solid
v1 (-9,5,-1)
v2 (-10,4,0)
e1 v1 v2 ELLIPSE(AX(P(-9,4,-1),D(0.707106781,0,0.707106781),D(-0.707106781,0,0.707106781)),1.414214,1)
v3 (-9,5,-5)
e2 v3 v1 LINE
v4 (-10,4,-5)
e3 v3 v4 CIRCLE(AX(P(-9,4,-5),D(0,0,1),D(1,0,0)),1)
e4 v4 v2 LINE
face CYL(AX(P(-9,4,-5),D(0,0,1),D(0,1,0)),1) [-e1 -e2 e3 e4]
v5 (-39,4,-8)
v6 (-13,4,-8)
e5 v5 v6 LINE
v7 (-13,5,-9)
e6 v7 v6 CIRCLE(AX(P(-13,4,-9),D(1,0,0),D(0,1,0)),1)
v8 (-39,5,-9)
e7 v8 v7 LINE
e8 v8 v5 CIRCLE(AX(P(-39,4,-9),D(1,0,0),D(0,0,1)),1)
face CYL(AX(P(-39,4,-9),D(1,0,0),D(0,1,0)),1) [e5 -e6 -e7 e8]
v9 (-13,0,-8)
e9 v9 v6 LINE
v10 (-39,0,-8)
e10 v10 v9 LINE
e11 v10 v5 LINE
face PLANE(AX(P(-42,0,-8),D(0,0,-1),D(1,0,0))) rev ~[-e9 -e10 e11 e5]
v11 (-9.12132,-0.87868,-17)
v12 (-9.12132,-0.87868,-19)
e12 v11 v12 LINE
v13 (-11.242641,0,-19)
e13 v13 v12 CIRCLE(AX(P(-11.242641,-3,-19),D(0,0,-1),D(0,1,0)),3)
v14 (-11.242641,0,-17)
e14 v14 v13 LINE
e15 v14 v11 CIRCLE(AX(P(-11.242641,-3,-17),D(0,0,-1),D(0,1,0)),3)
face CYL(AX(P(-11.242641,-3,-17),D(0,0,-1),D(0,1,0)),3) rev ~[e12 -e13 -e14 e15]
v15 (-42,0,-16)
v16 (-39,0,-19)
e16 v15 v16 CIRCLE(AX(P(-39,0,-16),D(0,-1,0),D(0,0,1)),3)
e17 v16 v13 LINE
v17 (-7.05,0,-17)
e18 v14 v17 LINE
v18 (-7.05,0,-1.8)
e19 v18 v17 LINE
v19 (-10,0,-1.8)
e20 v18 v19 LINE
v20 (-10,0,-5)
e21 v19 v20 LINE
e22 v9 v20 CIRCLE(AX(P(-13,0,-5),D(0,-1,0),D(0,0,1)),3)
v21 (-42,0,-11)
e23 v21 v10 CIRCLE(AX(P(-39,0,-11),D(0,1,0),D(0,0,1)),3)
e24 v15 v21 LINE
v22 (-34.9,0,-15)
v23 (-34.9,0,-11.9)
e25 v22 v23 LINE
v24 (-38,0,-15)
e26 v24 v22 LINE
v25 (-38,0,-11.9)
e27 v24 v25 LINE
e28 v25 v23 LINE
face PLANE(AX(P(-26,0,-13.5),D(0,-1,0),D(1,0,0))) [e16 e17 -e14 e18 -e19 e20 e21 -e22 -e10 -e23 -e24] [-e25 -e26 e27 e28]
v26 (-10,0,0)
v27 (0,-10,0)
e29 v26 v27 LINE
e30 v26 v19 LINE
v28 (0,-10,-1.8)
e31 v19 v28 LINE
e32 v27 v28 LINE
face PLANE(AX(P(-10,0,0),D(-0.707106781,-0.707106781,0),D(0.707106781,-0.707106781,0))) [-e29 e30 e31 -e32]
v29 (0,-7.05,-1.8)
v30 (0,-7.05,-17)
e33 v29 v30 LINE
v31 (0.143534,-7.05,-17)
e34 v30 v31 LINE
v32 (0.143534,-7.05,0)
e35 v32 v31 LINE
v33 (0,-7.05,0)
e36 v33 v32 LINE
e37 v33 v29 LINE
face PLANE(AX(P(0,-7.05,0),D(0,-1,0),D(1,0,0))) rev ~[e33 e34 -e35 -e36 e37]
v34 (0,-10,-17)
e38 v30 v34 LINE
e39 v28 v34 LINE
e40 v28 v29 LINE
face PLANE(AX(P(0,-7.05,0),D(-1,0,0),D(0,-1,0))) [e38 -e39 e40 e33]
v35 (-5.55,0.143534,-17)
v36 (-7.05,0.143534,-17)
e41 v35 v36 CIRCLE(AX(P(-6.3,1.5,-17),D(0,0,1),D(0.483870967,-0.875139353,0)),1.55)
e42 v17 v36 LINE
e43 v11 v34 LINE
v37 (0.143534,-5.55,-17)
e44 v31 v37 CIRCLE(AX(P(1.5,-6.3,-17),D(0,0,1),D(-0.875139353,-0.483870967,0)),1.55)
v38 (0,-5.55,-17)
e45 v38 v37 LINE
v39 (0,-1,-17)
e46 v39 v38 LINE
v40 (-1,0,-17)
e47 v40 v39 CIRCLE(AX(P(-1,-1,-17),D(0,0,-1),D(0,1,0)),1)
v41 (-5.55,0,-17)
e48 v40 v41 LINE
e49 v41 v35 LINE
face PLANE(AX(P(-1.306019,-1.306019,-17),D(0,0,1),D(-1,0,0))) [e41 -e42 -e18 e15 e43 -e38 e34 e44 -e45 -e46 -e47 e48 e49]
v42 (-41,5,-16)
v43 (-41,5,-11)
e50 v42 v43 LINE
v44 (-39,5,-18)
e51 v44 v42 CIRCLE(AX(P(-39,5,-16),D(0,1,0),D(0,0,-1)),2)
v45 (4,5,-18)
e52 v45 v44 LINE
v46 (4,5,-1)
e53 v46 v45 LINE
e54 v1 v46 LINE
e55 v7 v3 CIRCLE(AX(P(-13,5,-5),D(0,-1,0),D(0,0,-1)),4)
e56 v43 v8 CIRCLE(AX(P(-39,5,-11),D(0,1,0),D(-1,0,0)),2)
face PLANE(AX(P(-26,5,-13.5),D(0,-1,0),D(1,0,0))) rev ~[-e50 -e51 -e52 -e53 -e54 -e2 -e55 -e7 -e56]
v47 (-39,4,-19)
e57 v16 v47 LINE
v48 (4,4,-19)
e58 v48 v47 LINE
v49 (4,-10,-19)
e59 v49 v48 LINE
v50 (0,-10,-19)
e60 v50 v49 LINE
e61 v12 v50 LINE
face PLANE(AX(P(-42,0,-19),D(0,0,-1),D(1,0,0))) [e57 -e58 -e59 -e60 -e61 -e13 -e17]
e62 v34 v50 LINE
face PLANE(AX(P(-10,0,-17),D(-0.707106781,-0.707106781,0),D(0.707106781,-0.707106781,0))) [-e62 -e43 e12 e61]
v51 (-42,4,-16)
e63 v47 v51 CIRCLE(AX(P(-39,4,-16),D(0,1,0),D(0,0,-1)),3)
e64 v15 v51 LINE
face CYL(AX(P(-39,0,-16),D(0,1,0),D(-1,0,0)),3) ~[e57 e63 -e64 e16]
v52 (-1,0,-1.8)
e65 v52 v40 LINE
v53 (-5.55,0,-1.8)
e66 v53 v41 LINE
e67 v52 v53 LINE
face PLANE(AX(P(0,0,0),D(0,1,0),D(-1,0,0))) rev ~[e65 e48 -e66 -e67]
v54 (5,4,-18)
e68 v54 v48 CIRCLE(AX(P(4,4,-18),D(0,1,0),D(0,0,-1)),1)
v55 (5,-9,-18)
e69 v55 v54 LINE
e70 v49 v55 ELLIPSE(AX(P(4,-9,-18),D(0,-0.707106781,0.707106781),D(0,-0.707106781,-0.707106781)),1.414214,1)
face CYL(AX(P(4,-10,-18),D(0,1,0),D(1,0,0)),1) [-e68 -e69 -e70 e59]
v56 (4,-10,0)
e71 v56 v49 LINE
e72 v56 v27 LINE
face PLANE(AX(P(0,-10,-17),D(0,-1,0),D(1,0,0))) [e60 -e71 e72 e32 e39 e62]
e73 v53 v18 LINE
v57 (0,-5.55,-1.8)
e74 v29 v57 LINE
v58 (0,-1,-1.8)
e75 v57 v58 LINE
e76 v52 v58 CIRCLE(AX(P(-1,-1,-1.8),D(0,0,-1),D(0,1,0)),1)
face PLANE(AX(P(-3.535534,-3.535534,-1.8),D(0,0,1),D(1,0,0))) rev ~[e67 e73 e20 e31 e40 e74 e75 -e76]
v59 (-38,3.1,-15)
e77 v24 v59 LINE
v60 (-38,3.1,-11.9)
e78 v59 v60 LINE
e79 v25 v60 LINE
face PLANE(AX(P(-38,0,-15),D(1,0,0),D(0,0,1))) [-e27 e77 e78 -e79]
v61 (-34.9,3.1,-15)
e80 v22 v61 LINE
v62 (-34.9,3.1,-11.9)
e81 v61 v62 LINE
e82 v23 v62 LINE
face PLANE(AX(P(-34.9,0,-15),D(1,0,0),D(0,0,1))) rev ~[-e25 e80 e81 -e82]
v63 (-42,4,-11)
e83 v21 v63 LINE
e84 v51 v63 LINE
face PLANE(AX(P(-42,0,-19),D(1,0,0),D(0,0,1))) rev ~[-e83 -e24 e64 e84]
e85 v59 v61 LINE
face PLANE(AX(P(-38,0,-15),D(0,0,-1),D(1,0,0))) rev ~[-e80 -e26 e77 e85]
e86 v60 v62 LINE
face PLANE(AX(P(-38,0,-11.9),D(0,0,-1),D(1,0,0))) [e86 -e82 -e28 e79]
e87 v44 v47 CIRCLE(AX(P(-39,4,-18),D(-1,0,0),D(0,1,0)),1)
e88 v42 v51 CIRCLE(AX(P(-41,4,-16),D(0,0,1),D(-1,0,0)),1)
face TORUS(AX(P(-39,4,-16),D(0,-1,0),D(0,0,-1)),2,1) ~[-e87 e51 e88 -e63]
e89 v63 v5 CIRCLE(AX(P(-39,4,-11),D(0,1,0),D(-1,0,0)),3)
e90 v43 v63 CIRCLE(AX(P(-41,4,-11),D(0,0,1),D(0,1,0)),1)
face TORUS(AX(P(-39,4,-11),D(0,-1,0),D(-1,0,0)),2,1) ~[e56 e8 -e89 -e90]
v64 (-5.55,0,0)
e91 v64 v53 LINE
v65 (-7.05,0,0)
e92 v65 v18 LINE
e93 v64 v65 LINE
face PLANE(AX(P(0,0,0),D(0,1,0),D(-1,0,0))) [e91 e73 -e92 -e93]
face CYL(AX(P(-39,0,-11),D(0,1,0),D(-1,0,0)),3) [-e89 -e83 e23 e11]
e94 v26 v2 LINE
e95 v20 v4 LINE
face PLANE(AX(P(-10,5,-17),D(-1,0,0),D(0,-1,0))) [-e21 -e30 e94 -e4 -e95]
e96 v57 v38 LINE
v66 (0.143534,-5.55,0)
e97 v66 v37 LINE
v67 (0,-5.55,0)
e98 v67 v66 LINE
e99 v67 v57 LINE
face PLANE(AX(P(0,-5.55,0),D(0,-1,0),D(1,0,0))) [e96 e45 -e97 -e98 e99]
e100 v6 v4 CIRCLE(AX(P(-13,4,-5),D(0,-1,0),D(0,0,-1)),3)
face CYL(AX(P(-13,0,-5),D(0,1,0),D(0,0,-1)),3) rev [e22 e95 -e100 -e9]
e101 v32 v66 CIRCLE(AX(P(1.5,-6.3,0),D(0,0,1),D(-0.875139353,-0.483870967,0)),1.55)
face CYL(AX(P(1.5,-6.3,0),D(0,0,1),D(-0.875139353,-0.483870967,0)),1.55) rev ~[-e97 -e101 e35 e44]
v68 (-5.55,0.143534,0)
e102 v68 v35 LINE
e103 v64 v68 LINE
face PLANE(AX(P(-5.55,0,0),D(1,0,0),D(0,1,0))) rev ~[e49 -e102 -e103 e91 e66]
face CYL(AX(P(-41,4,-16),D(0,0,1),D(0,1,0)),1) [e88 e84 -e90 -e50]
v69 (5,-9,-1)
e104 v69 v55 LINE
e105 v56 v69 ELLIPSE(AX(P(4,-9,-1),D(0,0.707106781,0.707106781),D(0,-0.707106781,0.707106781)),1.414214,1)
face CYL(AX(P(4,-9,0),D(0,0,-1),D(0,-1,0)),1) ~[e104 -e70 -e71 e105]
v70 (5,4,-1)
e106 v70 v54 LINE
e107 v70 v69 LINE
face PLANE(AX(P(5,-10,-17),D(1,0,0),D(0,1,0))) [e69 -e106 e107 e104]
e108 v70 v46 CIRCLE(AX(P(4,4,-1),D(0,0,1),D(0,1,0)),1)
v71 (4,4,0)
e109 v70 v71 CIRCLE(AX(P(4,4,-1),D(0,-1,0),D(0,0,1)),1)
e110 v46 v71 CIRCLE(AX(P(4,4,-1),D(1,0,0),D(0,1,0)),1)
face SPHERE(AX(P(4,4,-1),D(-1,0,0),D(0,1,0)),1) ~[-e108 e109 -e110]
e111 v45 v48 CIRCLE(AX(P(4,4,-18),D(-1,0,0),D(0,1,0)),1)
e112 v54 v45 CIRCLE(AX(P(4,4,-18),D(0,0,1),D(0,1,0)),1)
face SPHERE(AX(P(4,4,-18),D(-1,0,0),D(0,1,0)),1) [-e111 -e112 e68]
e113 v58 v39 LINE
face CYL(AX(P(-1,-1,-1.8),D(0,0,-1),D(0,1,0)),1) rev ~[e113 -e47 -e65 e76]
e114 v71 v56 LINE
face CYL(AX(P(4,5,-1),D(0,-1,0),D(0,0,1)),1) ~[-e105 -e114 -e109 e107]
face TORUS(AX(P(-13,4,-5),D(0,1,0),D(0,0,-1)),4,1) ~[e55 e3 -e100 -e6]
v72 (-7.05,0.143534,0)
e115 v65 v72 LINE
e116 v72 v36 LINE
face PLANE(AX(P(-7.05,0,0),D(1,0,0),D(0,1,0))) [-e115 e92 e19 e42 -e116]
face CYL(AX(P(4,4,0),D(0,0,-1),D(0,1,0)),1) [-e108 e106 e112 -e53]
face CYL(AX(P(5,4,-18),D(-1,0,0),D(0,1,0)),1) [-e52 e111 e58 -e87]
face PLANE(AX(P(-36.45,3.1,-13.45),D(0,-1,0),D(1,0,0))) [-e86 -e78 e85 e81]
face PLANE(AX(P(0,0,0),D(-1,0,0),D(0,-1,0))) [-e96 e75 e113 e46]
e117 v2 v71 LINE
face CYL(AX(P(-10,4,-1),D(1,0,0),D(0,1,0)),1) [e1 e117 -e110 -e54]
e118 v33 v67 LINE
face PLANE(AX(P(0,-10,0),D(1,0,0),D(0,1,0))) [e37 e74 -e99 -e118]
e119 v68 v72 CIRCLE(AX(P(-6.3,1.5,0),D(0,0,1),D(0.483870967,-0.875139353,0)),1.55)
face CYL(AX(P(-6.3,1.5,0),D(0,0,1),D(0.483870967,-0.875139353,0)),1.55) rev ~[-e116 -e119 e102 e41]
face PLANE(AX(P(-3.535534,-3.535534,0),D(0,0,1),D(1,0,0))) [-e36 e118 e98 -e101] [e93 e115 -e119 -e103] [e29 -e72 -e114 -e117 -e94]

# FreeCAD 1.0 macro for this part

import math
import FreeCAD as App
import Part
import Sketcher
from FreeCAD import Vector


def edges_at(feature, points):
    """Names of the edges that pass closest to the given points."""
    edges = feature.Shape.Edges
    near = lambda p: min(range(len(edges)), key=lambda i: edges[i].distToShape(Part.Vertex(*p))[0])
    return sorted({f"Edge{near(p) + 1}" for p in points})


def add_polygon(sketch, points):
    """Adds a closed chain of lines whose ends are joined by coincident constraints."""
    first, n = sketch.GeometryCount, len(points)
    for a, b in zip(points, points[1:] + points[:1]):
        sketch.addGeometry(Part.LineSegment(App.Vector(*a, 0), App.Vector(*b, 0)), False)
    for i in range(n):
        sketch.addConstraint(Sketcher.Constraint("Coincident", first + i, 2, first + (i + 1) % n, 1))

doc = App.newDocument("Part")
body = doc.addObject("PartDesign::Body", "Body")

# Sketch on XY plane
sketch1 = body.newObject("Sketcher::SketchObject", "Sketch")
sketch1.AttachmentSupport = (doc.getObject("XY_Plane"), [""])
sketch1.MapMode = "FlatFace"
sketch1.addGeometry([
    Part.LineSegment(Vector(-10, 5, 0), Vector(-10, 0, 0)),  # 0
    Part.LineSegment(Vector(-10, 0, 0), Vector(-7.05, 0, 0)),  # 1
    Part.LineSegment(Vector(-7.05, 0, 0), Vector(-7.05, 0.143534, 0)),  # 2
    Part.ArcOfCircle(Part.Circle(Vector(-6.3, 1.5, 0), Vector(0, 0, 1), 1.55), math.radians(-61.061472), math.radians(241.061472)),  # 3
    Part.LineSegment(Vector(-5.55, 0.143534, 0), Vector(-5.55, 0, 0)),  # 4
    Part.LineSegment(Vector(-5.55, 0, 0), Vector(0, 0, 0)),  # 5
    Part.LineSegment(Vector(0, 0, 0), Vector(0, -5.55, 0)),  # 6
    Part.LineSegment(Vector(0, -5.55, 0), Vector(0.143534, -5.55, 0)),  # 7
    Part.ArcOfCircle(Part.Circle(Vector(1.5, -6.3, 0), Vector(0, 0, 1), 1.55), math.radians(-151.061472), math.radians(151.061472)),  # 8
    Part.LineSegment(Vector(0.143534, -7.05, 0), Vector(0, -7.05, 0)),  # 9
    Part.LineSegment(Vector(0, -7.05, 0), Vector(0, -10, 0)),  # 10
    Part.LineSegment(Vector(0, -10, 0), Vector(5, -10, 0)),  # 11
    Part.LineSegment(Vector(5, -10, 0), Vector(5, 5, 0)),  # 12
    Part.LineSegment(Vector(5, 5, 0), Vector(-10, 5, 0)),  # 13
], False)
sketch1.addConstraint([
    Sketcher.Constraint("Coincident", 0, 2, 1, 1),
    Sketcher.Constraint("Coincident", 1, 2, 2, 1),
    Sketcher.Constraint("Coincident", 2, 2, 3, 2),
    Sketcher.Constraint("Coincident", 3, 1, 4, 1),
    Sketcher.Constraint("Coincident", 4, 2, 5, 1),
    Sketcher.Constraint("Coincident", 5, 2, 6, 1),
    Sketcher.Constraint("Coincident", 6, 2, 7, 1),
    Sketcher.Constraint("Coincident", 7, 2, 8, 2),
    Sketcher.Constraint("Coincident", 8, 1, 9, 1),
    Sketcher.Constraint("Coincident", 9, 2, 10, 1),
    Sketcher.Constraint("Coincident", 10, 2, 11, 1),
    Sketcher.Constraint("Coincident", 11, 2, 12, 1),
    Sketcher.Constraint("Coincident", 12, 2, 13, 1),
    Sketcher.Constraint("Coincident", 13, 2, 0, 1),
    Sketcher.Constraint("Vertical", 0),
    Sketcher.Constraint("Horizontal", 1),
    Sketcher.Constraint("Vertical", 2),
    Sketcher.Constraint("Vertical", 4),
    Sketcher.Constraint("Horizontal", 5),
    Sketcher.Constraint("Vertical", 6),
    Sketcher.Constraint("Horizontal", 7),
    Sketcher.Constraint("Horizontal", 9),
    Sketcher.Constraint("Vertical", 10),
    Sketcher.Constraint("Horizontal", 11),
    Sketcher.Constraint("Vertical", 12),
    Sketcher.Constraint("Horizontal", 13),
    Sketcher.Constraint("Coincident", 5, 2, -1, 1),
    Sketcher.Constraint("Equal", 3, 8),
    Sketcher.Constraint("PointOnObject", 0, 2, -1),
    Sketcher.Constraint("PointOnObject", 9, 2, -2),
    Sketcher.Constraint("Horizontal", 2, 2, 3, 1),
    Sketcher.Constraint("Vertical", 7, 2, 8, 1),
    Sketcher.Constraint("Equal", 11, 0),
    Sketcher.Constraint("Equal", 9, 2),
    Sketcher.Constraint("Equal", 5, 6),
    Sketcher.Constraint("Equal", 1, 10),
    Sketcher.Constraint("Equal", 13, 12),
    Sketcher.Constraint("DistanceX", 11, 1, 11, 2, 5.0),
    Sketcher.Constraint("DistanceX", 13, 2, 13, 1, 15.0),
    Sketcher.Constraint("Radius", 3, 1.55),
    Sketcher.Constraint("DistanceX", 1, 1, 1, 2, 2.95),
    Sketcher.Constraint("DistanceX", 5, 1, 5, 2, 5.55),
    Sketcher.Constraint("DistanceY", -1, 1, 3, 3, 1.5),
])
pad1 = body.newObject("PartDesign::Pad", "Pad")
pad1.Profile = sketch1
pad1.Length = 17
pad1.Reversed = True

# Sketch on XY plane
sketch2 = body.newObject("Sketcher::SketchObject", "Sketch001")
sketch2.AttachmentSupport = (doc.getObject("XY_Plane"), [""])
sketch2.MapMode = "FlatFace"
sketch2.AttachmentOffset = App.Placement(Vector(0, 0, -17), App.Rotation())
add_polygon(sketch2, [(-10, 5), (5, 5), (5, -10), (0, -10), (-10, 0)])  # lines 0-4
sketch2.addConstraint([
    Sketcher.Constraint("Horizontal", 0),
    Sketcher.Constraint("Vertical", 1),
    Sketcher.Constraint("Horizontal", 2),
    Sketcher.Constraint("Vertical", 4),
    Sketcher.Constraint("PointOnObject", 2, 2, -2),
    Sketcher.Constraint("PointOnObject", 3, 2, -1),
    Sketcher.Constraint("Equal", 0, 1),
    Sketcher.Constraint("Equal", 2, 4),
    Sketcher.Constraint("DistanceX", 0, 1, 0, 2, 15.0),
    Sketcher.Constraint("DistanceX", 2, 2, 2, 1, 5.0),
])
pad2 = body.newObject("PartDesign::Pad", "Pad001")
pad2.Profile = sketch2
pad2.Length = 2
pad2.Reversed = True

# Sketch on XY plane
sketch3 = body.newObject("Sketcher::SketchObject", "Sketch002")
sketch3.AttachmentSupport = (doc.getObject("XY_Plane"), [""])
sketch3.MapMode = "FlatFace"
add_polygon(sketch3, [(0, -10), (0, 0), (-10, 0)])  # lines 0-2
sketch3.addConstraint([
    Sketcher.Constraint("Vertical", 0),
    Sketcher.Constraint("Horizontal", 1),
    Sketcher.Constraint("Coincident", 0, 2, -1, 1),
    Sketcher.Constraint("Equal", 1, 0),
    Sketcher.Constraint("DistanceX", 1, 2, 1, 1, 10.0),
])
pad3 = body.newObject("PartDesign::Pad", "Pad002")
pad3.Profile = sketch3
pad3.Length = 1.8
pad3.Reversed = True

# Sketch on XZ plane
sketch4 = body.newObject("Sketcher::SketchObject", "Sketch003")
sketch4.AttachmentSupport = (doc.getObject("XZ_Plane"), [""])
sketch4.MapMode = "FlatFace"
add_polygon(sketch4, [(-42, -8), (-42, -19), (-10, -19), (-10, -8)])  # lines 0-3
sketch4.addConstraint([
    Sketcher.Constraint("Vertical", 0),
    Sketcher.Constraint("Horizontal", 1),
    Sketcher.Constraint("Vertical", 2),
    Sketcher.Constraint("Horizontal", 3),
    Sketcher.Constraint("DistanceX", 1, 1, 1, 2, 32.0),
    Sketcher.Constraint("DistanceY", 0, 2, 0, 1, 11.0),
    Sketcher.Constraint("DistanceX", 0, 2, -1, 1, 42.0),
    Sketcher.Constraint("DistanceY", 0, 2, -1, 1, 19.0),
])
pad4 = body.newObject("PartDesign::Pad", "Pad003")
pad4.Profile = sketch4
pad4.Length = 5
pad4.Reversed = True

# Sketch on XZ plane
sketch5 = body.newObject("Sketcher::SketchObject", "Sketch004")
sketch5.AttachmentSupport = (doc.getObject("XZ_Plane"), [""])
sketch5.MapMode = "FlatFace"
add_polygon(sketch5, [(-38, -11.9), (-38, -15), (-34.9, -15), (-34.9, -11.9)])  # lines 0-3
sketch5.addConstraint([
    Sketcher.Constraint("Vertical", 0),
    Sketcher.Constraint("Horizontal", 1),
    Sketcher.Constraint("Vertical", 2),
    Sketcher.Constraint("Horizontal", 3),
    Sketcher.Constraint("Equal", 3, 0),
    Sketcher.Constraint("DistanceX", 1, 1, 1, 2, 3.1),
    Sketcher.Constraint("DistanceX", 0, 2, -1, 1, 38.0),
    Sketcher.Constraint("DistanceY", 0, 2, -1, 1, 15.0),
])
pocket1 = body.newObject("PartDesign::Pocket", "Pocket")
pocket1.Profile = sketch5
pocket1.Length = 3.1
doc.recompute()

fillet = body.newObject("PartDesign::Fillet", "Fillet")
fillet.Base = (pocket1, edges_at(pocket1, [
    (-10, 2.5, -8),
    (-42, 2.5, -8),
    (-42, 2.5, -19),
    (-10, 0, -18),
]))
fillet.Radius = 3
doc.recompute()

fillet2 = body.newObject("PartDesign::Fillet", "Fillet001")
fillet2.Base = (fillet, edges_at(fillet, [
    (-10, 5, -2.5),
    (-10.879, 5, -7.121),
    (-2.5, 5, 0),
    (-26, 5, -8),
    (5, 5, -9.5),
    (-41.121, 5, -8.879),
    (-17, 5, -19),
    (-42, 5, -13.5),
    (-41.121, 5, -18.121),
    (5, -2.5, 0),
    (5, -10, -9.5),
    (5, -2.5, -19),
    (0, 0, -9.4),
]))
fillet2.Radius = 1

doc.recompute()
